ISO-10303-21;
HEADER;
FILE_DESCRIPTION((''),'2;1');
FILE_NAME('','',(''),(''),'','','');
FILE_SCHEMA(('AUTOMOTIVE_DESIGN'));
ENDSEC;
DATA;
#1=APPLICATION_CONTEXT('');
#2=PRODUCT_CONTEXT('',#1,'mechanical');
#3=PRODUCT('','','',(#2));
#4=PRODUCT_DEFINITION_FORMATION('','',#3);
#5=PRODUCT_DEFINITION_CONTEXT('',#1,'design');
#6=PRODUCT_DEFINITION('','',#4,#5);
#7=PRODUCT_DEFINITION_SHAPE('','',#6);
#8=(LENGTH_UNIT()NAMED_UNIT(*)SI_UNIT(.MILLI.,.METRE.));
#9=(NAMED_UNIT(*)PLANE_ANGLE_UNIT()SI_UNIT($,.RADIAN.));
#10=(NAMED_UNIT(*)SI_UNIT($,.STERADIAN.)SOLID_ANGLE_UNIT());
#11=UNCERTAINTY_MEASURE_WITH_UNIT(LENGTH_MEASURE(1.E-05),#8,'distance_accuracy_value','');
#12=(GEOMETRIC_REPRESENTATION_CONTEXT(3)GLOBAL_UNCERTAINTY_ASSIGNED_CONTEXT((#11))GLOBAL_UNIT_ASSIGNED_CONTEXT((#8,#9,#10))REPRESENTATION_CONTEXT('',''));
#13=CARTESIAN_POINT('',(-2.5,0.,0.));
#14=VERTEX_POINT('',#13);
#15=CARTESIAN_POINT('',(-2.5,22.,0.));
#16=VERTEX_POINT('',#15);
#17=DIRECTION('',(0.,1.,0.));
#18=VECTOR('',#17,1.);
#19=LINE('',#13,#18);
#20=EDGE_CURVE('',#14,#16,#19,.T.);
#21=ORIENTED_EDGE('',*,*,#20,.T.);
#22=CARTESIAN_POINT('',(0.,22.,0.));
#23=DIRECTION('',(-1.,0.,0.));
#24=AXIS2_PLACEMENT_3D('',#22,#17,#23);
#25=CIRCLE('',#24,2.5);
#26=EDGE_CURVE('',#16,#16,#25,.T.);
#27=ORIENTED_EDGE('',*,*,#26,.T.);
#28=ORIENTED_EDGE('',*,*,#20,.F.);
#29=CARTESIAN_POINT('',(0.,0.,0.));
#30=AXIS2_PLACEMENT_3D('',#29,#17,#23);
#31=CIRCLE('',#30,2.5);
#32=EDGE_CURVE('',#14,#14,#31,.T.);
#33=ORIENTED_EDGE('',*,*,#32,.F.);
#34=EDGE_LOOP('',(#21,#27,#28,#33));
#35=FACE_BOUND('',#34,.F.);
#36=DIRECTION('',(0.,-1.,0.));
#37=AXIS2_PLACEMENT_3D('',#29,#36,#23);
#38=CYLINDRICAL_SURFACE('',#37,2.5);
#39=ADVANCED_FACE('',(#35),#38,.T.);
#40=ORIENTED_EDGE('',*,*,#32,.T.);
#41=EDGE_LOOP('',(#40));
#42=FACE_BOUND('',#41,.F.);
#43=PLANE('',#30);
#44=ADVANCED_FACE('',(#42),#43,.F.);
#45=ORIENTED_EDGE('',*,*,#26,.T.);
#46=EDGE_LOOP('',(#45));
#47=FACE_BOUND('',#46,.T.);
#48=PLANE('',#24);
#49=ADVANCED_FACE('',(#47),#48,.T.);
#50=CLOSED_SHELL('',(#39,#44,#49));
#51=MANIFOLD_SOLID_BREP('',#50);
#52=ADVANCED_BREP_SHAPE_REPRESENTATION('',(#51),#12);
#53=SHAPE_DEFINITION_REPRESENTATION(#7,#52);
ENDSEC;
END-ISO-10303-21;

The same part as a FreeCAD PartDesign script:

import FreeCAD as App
import Part
import Sketcher
from FreeCAD import Vector
Q = App.Units.Quantity

doc = App.newDocument("Part")
params = doc.addObject("Spreadsheet::Sheet", "Params")
for row, (alias, value) in enumerate([
    ("sketch1_diameter", "5 mm"),
    ("pad1_length", "22 mm"),
], start=1):
    params.set(f"A{row}", alias)
    params.set(f"B{row}", "=" + value)
    params.setAlias(f"B{row}", alias)

body = doc.addObject("PartDesign::Body", "Body")

# Sketch on XZ plane
sketch1 = body.newObject("Sketcher::SketchObject", "Sketch")
sketch1.AttachmentSupport = (doc.getObject("XZ_Plane"), [""])
sketch1.MapMode = "FlatFace"
sketch1.addGeometry(Part.Circle(Vector(0, 0, 0), Vector(0, 0, 1), 2.5), False)
sketch1.addConstraint([
    Sketcher.Constraint("Coincident", 0, 3, -1, 1),
    Sketcher.Constraint("Diameter", 0, Q("5 mm")),
])
sketch1.setExpression("Constraints[1]", "Params.sketch1_diameter")
pad1 = body.newObject("PartDesign::Pad", "Pad")
pad1.Profile = sketch1
pad1.setExpression("Length", "Params.pad1_length")
pad1.Reversed = True

doc.recompute()
